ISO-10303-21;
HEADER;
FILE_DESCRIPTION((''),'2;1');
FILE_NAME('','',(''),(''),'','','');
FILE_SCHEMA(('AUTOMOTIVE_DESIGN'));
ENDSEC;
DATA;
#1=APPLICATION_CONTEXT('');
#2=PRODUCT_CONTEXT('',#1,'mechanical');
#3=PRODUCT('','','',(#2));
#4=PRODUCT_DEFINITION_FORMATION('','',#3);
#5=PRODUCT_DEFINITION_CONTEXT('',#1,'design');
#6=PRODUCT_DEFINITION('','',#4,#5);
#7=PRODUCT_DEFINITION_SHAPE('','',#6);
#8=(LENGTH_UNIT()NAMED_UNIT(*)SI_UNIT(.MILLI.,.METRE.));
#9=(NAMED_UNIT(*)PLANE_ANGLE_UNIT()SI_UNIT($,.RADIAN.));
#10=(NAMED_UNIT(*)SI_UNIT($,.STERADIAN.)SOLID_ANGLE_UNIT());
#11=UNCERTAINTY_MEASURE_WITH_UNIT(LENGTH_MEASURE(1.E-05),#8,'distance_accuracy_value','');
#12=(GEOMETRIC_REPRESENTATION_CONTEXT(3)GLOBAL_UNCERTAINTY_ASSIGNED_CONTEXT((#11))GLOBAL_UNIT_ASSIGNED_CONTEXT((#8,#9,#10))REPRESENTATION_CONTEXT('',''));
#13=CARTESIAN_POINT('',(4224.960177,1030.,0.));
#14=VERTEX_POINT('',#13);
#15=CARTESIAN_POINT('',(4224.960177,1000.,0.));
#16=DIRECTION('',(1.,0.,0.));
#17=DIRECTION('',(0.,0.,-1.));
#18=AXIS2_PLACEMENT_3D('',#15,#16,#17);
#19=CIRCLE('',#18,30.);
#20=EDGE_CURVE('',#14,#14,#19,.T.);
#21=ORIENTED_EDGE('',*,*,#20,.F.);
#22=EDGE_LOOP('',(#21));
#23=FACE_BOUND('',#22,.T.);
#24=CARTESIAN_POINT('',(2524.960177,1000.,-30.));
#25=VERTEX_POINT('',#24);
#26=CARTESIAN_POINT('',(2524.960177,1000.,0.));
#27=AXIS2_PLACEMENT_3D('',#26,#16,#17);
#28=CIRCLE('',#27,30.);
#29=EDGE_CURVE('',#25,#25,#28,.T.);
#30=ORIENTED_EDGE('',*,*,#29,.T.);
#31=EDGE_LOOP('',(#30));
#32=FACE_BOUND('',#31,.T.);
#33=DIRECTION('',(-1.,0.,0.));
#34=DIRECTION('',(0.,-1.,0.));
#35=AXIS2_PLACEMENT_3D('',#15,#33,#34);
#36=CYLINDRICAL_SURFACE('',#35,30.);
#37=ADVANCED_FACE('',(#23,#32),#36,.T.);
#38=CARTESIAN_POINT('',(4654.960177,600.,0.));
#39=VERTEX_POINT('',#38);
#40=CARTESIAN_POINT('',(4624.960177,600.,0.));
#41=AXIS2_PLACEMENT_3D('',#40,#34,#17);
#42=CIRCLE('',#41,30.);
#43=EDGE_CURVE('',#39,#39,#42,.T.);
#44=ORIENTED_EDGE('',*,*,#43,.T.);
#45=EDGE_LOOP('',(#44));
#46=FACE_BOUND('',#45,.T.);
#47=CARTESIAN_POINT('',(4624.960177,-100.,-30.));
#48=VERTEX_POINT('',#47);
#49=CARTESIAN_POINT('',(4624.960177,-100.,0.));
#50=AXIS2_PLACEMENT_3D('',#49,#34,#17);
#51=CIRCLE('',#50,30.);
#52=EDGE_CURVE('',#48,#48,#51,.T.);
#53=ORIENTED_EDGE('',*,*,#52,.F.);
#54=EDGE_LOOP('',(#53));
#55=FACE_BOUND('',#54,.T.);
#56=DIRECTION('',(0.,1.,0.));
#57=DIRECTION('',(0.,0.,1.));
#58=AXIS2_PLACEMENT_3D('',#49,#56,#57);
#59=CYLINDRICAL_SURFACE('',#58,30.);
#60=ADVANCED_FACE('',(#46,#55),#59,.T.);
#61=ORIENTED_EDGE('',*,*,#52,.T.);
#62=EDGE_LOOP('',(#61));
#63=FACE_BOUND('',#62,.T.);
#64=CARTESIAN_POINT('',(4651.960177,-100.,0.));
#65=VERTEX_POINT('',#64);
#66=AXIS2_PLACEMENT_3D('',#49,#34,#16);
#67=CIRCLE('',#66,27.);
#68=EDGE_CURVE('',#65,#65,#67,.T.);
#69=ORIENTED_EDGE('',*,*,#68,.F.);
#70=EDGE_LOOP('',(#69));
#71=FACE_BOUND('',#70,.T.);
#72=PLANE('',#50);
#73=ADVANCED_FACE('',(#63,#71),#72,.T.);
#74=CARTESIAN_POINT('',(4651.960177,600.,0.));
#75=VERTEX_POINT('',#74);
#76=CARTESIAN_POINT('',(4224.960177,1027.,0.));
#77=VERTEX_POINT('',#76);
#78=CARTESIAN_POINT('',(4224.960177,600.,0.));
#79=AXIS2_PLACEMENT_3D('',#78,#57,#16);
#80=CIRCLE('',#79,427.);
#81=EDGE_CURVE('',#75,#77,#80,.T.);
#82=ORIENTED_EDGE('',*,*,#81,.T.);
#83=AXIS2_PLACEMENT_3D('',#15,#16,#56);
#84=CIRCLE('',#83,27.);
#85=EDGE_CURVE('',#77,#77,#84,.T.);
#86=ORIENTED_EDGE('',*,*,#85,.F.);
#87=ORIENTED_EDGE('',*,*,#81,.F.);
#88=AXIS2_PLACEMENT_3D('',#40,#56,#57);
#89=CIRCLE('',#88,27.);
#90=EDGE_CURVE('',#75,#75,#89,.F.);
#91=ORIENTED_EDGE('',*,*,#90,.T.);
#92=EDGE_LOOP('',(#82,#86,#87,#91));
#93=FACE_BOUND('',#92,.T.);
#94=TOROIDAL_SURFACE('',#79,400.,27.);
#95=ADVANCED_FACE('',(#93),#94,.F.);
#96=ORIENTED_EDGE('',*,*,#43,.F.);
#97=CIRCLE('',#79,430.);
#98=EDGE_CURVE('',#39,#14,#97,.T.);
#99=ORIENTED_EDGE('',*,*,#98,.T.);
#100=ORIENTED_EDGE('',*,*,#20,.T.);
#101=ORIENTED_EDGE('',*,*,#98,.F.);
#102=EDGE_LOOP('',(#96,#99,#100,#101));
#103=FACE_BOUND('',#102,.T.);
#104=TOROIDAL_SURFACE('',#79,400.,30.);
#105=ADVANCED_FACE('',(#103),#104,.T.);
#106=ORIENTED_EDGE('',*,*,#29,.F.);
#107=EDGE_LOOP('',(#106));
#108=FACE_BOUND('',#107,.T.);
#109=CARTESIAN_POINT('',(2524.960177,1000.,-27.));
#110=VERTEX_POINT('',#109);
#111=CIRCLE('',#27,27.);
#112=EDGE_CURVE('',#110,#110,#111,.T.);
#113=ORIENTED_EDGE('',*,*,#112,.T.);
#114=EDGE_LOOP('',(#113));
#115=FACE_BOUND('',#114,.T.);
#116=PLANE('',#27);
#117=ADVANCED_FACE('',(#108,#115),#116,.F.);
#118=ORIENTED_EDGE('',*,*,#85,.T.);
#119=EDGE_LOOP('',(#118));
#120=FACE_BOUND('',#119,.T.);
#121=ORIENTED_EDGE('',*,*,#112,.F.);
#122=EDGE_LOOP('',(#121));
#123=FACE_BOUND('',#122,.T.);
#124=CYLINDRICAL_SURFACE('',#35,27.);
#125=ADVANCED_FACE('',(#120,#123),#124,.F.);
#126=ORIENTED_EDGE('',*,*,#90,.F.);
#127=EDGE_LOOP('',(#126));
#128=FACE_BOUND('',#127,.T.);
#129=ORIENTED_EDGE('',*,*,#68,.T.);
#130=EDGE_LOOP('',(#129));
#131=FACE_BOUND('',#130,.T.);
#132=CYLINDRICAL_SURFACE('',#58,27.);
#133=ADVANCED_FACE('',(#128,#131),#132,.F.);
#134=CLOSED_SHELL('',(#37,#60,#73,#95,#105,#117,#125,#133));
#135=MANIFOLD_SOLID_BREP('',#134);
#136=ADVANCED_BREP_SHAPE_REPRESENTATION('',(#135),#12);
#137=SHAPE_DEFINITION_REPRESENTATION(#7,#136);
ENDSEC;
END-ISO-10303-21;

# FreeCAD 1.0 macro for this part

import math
import FreeCAD as App
import Part
import Sketcher

doc = App.newDocument("Part")
body = doc.addObject("PartDesign::Body", "Body")

sketch1 = body.newObject("Sketcher::SketchObject", "Sketch")
sketch1.AttachmentSupport = (doc.getObject("XZ_Plane"), [""])
sketch1.MapMode = "FlatFace"
sketch1.AttachmentOffset = App.Placement(App.Vector(0, 0, 100), App.Rotation())
sketch1.addGeometry(Part.Circle(App.Vector(4625, 0, 0), App.Vector(0, 0, 1), 30), False)
sketch1.addGeometry(Part.Circle(App.Vector(4625, 0, 0), App.Vector(0, 0, 1), 27), False)
sketch1.addConstraint(Sketcher.Constraint("Coincident", 1, 3, 0, 3))
sketch1.addConstraint(Sketcher.Constraint("PointOnObject", 0, 3, -1))
sketch1.addConstraint(Sketcher.Constraint("Diameter", 0, 60.0))
sketch1.addConstraint(Sketcher.Constraint("Diameter", 1, 54.0))
sketch1.addConstraint(Sketcher.Constraint("DistanceX", -1, 1, 0, 3, 4624.960177))

sketch2 = body.newObject("Sketcher::SketchObject", "Sketch001")
sketch2.AttachmentSupport = (doc.getObject("XY_Plane"), [""])
sketch2.MapMode = "FlatFace"
sketch2.addGeometry(Part.LineSegment(App.Vector(4625, -100, 0), App.Vector(4625, 600, 0)), False)
sketch2.addGeometry(Part.ArcOfCircle(Part.Circle(App.Vector(4225, 600, 0), App.Vector(0, 0, 1), 400), math.radians(0), math.radians(90)), False)
sketch2.addGeometry(Part.LineSegment(App.Vector(4225, 1000, 0), App.Vector(2525, 1000, 0)), False)
sketch2.addConstraint(Sketcher.Constraint("Tangent", 0, 2, 1, 1))
sketch2.addConstraint(Sketcher.Constraint("Tangent", 1, 2, 2, 1))
sketch2.addConstraint(Sketcher.Constraint("Vertical", 0))
sketch2.addConstraint(Sketcher.Constraint("Horizontal", 2))
sketch2.addConstraint(Sketcher.Constraint("Radius", 1, 400.0))
sketch2.addConstraint(Sketcher.Constraint("DistanceX", 2, 2, 2, 1, 1700.0))
sketch2.addConstraint(Sketcher.Constraint("DistanceY", 0, 1, 0, 2, 700.0))
sketch2.addConstraint(Sketcher.Constraint("DistanceY", -1, 1, 1, 3, 600.0))
sketch2.addConstraint(Sketcher.Constraint("DistanceX", -1, 1, 1, 3, 4224.960177))
doc.recompute()

additivepipe = body.newObject("PartDesign::AdditivePipe", "AdditivePipe")
additivepipe.Profile = sketch1
additivepipe.Spine = (sketch2, ["Edge1", "Edge2", "Edge3"])

doc.recompute()
